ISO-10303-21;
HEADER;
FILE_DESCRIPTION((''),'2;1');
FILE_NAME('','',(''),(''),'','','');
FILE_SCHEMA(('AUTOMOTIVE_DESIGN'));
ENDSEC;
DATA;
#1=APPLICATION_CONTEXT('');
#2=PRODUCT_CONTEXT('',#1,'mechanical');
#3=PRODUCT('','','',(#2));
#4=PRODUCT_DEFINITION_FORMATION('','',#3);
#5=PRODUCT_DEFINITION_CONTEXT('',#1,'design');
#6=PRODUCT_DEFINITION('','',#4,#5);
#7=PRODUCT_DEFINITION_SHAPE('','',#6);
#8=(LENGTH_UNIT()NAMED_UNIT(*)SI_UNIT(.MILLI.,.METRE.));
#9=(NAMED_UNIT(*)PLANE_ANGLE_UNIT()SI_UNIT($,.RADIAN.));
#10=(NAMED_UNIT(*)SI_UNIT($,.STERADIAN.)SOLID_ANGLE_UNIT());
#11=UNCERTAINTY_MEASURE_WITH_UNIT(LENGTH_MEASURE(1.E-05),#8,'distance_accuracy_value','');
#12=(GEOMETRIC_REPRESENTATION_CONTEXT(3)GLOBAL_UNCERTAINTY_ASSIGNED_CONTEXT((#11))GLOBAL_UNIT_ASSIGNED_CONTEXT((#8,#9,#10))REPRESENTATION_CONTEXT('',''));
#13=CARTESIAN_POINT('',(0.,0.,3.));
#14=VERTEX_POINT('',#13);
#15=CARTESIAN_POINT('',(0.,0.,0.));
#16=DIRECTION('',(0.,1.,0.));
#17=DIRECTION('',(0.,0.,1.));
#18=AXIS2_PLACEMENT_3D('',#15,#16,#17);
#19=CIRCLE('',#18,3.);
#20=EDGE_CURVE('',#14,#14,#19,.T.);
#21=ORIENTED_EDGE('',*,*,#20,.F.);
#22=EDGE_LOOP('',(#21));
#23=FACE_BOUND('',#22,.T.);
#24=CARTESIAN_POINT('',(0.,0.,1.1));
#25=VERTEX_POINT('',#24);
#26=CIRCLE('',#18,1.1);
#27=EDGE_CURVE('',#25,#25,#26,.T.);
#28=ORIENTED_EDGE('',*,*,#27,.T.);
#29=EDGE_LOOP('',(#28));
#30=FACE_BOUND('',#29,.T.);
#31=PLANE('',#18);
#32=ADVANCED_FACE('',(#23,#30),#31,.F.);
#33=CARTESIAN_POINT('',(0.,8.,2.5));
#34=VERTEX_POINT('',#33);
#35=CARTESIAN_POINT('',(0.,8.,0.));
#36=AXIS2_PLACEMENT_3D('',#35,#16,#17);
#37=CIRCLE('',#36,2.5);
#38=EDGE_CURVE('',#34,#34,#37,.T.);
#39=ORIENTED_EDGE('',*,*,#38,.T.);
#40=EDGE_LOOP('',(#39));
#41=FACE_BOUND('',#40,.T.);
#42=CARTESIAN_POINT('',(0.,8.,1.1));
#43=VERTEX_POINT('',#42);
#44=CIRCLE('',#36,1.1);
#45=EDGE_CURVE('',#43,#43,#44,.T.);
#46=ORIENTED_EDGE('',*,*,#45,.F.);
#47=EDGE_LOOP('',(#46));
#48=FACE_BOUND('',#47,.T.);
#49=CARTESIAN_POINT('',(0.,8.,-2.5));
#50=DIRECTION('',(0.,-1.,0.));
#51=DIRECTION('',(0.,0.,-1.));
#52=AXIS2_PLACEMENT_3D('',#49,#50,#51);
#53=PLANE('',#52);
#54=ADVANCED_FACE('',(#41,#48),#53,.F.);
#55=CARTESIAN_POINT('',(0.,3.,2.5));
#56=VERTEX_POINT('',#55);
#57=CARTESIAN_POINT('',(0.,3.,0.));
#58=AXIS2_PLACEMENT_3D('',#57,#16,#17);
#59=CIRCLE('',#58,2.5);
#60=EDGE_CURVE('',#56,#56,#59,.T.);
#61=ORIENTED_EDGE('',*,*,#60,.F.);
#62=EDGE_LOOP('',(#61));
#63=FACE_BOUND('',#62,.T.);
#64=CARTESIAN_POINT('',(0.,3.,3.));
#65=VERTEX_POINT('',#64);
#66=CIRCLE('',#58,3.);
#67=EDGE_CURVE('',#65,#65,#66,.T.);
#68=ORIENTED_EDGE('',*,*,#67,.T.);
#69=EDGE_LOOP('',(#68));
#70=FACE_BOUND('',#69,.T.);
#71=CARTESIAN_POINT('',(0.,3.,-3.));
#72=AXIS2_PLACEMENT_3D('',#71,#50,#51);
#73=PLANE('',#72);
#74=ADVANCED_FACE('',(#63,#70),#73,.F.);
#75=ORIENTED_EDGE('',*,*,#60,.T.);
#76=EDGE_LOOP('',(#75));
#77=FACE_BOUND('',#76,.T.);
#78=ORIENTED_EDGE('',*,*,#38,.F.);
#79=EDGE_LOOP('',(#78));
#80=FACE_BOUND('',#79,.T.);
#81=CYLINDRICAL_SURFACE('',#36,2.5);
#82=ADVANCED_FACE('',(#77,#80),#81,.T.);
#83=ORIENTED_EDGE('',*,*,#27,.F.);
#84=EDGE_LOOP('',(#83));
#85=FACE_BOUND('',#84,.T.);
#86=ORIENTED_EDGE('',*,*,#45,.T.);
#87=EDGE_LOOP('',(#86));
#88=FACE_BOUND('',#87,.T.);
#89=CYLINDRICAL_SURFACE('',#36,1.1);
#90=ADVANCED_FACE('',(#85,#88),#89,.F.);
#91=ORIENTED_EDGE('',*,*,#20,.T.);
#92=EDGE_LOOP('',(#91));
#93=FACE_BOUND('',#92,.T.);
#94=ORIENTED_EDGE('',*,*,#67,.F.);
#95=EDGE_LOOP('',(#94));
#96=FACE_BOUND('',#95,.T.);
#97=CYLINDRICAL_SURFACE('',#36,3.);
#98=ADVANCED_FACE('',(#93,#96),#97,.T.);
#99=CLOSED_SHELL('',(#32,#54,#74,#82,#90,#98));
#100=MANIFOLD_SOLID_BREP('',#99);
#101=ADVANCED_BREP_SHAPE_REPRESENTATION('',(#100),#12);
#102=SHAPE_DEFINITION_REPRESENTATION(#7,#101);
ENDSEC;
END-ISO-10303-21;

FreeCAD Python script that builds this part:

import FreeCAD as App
import Part
import Sketcher

doc = App.newDocument("Part")
params = doc.addObject("Spreadsheet::Sheet", "Params")
for row, (alias, value) in enumerate([
    ("sketch1_width", "3 mm"),
    ("sketch1_width2", "5 mm"),
    ("sketch1_height", "0.5 mm"),
    ("revolution_angle", "360 deg"),
    ("sketch2_diameter", "2.2 mm"),
    ("hole_diameter", "2.2 mm"),
], start=1):
    params.set(f"A{row}", alias)
    params.set(f"B{row}", "=" + value)
    params.setAlias(f"B{row}", alias)

body = doc.addObject("PartDesign::Body", "Body")

# Sketch on YZ plane
sketch1 = body.newObject("Sketcher::SketchObject", "Sketch")
sketch1.AttachmentSupport = (doc.getObject("YZ_Plane"), [""])
sketch1.MapMode = "FlatFace"
sketch1.addGeometry([
    Part.LineSegment(App.Vector(0, 0, 0), App.Vector(0, -3, 0)),  # 0
    Part.LineSegment(App.Vector(0, -3, 0), App.Vector(3, -3, 0)),  # 1
    Part.LineSegment(App.Vector(3, -3, 0), App.Vector(3, -2.5, 0)),  # 2
    Part.LineSegment(App.Vector(3, -2.5, 0), App.Vector(8, -2.5, 0)),  # 3
    Part.LineSegment(App.Vector(8, -2.5, 0), App.Vector(8, 0, 0)),  # 4
    Part.LineSegment(App.Vector(8, 0, 0), App.Vector(0, 0, 0)),  # 5
], False)
sketch1.addConstraint([
    Sketcher.Constraint("Coincident", 0, 2, 1, 1),
    Sketcher.Constraint("Coincident", 1, 2, 2, 1),
    Sketcher.Constraint("Coincident", 2, 2, 3, 1),
    Sketcher.Constraint("Coincident", 3, 2, 4, 1),
    Sketcher.Constraint("Coincident", 4, 2, 5, 1),
    Sketcher.Constraint("Coincident", 5, 2, 0, 1),
    Sketcher.Constraint("Vertical", 0),
    Sketcher.Constraint("Horizontal", 1),
    Sketcher.Constraint("Vertical", 2),
    Sketcher.Constraint("Horizontal", 3),
    Sketcher.Constraint("Vertical", 4),
    Sketcher.Constraint("Horizontal", 5),
    Sketcher.Constraint("Coincident", 5, 2, -1, 1),
    Sketcher.Constraint("Equal", 1, 0),
    Sketcher.Constraint("DistanceX", 1, 1, 1, 2, 3.0),
    Sketcher.Constraint("DistanceX", 3, 1, 3, 2, 5.0),
    Sketcher.Constraint("DistanceY", 2, 1, 2, 2, 0.5),
])
sketch1.setExpression("Constraints[14]", "Params.sketch1_width")
sketch1.setExpression("Constraints[15]", "Params.sketch1_width2")
sketch1.setExpression("Constraints[16]", "Params.sketch1_height")
revolution = body.newObject("PartDesign::Revolution", "Revolution")
revolution.Profile = sketch1
revolution.ReferenceAxis = (sketch1, ["H_Axis"])
revolution.setExpression("Angle", "Params.revolution_angle")

# Sketch on XZ plane
sketch2 = body.newObject("Sketcher::SketchObject", "Sketch001")
sketch2.AttachmentSupport = (doc.getObject("XZ_Plane"), [""])
sketch2.MapMode = "FlatFace"
sketch2.AttachmentOffset = App.Placement(App.Vector(0, 0, -8), App.Rotation())
sketch2.addGeometry(Part.Circle(App.Vector(0, 0, 0), App.Vector(0, 0, 1), 1.1), False)
sketch2.addConstraint([
    Sketcher.Constraint("Coincident", 0, 3, -1, 1),
    Sketcher.Constraint("Diameter", 0, 2.2),
])
sketch2.setExpression("Constraints[1]", "Params.sketch2_diameter")
doc.recompute()
hole = body.newObject("PartDesign::Hole", "Hole")
hole.Profile = sketch2
hole.ThreadType = "None"
hole.setExpression("Diameter", "Params.hole_diameter")
hole.DepthType = "ThroughAll"
hole.Reversed = True

doc.recompute()
